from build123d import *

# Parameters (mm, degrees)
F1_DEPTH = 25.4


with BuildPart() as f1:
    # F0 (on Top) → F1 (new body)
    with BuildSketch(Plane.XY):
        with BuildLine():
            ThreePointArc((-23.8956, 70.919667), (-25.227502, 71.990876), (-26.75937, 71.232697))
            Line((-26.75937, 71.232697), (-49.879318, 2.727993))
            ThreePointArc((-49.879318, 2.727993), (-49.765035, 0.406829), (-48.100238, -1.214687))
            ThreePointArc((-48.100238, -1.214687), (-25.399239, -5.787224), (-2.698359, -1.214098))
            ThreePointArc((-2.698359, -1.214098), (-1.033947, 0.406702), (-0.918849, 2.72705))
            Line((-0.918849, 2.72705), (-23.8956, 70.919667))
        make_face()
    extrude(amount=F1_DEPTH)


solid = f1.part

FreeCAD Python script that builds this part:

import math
import FreeCAD as App
import Part
import Sketcher

V = App.Vector
Q = App.Units.Quantity

doc = App.newDocument("Part")
body = doc.addObject("PartDesign::Body", "Body")

# Sketch on XY plane
sketch1 = body.newObject("Sketcher::SketchObject", "Sketch")
sketch1.AttachmentSupport = (doc.getObject("XY_Plane"), [""])
sketch1.MapMode = "FlatFace"
sketch1.addGeometry([
    Part.ArcOfCircle(Part.Circle(V(-25.4, 70.412775, 0), V(0, 0, 1), 1.587501), math.radians(18.620721), math.radians(148.903155)),  # 0
    Part.LineSegment(V(-26.75937, 71.232697, 0), V(-49.879318, 2.727993, 0)),  # 1
    Part.ArcOfCircle(Part.Circle(V(-46.871024, 1.712712, 0), V(0, 0, 1), 3.175001), math.radians(161.350768), math.radians(247.222473)),  # 2
    Part.ArcOfCircle(Part.Circle(V(-25.4, 52.846408, 0), V(0, 0, 1), 58.633632), math.radians(-112.777521), math.radians(-67.220992)),  # 3
    Part.ArcOfCircle(Part.Circle(V(-3.92765, 1.713269, 0), V(0, 0, 1), 3.175002), math.radians(-67.220974), math.radians(18.62065)),  # 4
    Part.LineSegment(V(-0.918849, 2.72705, 0), V(-23.8956, 70.919667, 0)),  # 5
], False)
sketch1.addConstraint([
    Sketcher.Constraint("Coincident", 0, 2, 1, 1),
    Sketcher.Constraint("Coincident", 1, 2, 2, 1),
    Sketcher.Constraint("Coincident", 2, 2, 3, 1),
    Sketcher.Constraint("Coincident", 3, 2, 4, 1),
    Sketcher.Constraint("Coincident", 4, 2, 5, 1),
    Sketcher.Constraint("Coincident", 5, 2, 0, 1),
    Sketcher.Constraint("DistanceX", 0, 3, -1, 1, Q("1 in")),
    Sketcher.Constraint("DistanceX", 3, 3, -1, 1, Q("1 in")),
    Sketcher.Constraint("Radius", 0, Q("0.0625 in")),
    Sketcher.Constraint("Radius", 2, Q("0.125 in")),
    Sketcher.Constraint("Radius", 4, Q("0.1250001 in")),
    Sketcher.Constraint("Radius", 3, Q("58.633632 mm")),
    Sketcher.Constraint("DistanceY", 3, 2, -1, 1, Q("1.214098 mm")),
    Sketcher.Constraint("DistanceX", 5, 2, -1, 1, Q("23.8956 mm")),
    Sketcher.Constraint("DistanceY", 2, 2, 2, 3, Q("2.927399 mm")),
    Sketcher.Constraint("DistanceX", 4, 3, 4, 2, Q("3.008801 mm")),
    Sketcher.Constraint("Distance", 5, Q("71.959462 mm")),
    Sketcher.Constraint("DistanceY", -1, 1, 2, 3, Q("1.712712 mm")),
    Sketcher.Constraint("DistanceY", -1, 1, 3, 3, Q("52.846408 mm")),
    Sketcher.Constraint("DistanceX", 4, 3, -1, 1, Q("3.92765 mm")),
    Sketcher.Constraint("DistanceX", 0, 2, -1, 1, Q("26.75937 mm")),
    Sketcher.Constraint("DistanceY", 2, 3, 1, 2, Q("1.015281 mm")),
])
pad1 = body.newObject("PartDesign::Pad", "Pad")
pad1.Profile = sketch1
pad1.Length = Q("1 in")

doc.recompute()
